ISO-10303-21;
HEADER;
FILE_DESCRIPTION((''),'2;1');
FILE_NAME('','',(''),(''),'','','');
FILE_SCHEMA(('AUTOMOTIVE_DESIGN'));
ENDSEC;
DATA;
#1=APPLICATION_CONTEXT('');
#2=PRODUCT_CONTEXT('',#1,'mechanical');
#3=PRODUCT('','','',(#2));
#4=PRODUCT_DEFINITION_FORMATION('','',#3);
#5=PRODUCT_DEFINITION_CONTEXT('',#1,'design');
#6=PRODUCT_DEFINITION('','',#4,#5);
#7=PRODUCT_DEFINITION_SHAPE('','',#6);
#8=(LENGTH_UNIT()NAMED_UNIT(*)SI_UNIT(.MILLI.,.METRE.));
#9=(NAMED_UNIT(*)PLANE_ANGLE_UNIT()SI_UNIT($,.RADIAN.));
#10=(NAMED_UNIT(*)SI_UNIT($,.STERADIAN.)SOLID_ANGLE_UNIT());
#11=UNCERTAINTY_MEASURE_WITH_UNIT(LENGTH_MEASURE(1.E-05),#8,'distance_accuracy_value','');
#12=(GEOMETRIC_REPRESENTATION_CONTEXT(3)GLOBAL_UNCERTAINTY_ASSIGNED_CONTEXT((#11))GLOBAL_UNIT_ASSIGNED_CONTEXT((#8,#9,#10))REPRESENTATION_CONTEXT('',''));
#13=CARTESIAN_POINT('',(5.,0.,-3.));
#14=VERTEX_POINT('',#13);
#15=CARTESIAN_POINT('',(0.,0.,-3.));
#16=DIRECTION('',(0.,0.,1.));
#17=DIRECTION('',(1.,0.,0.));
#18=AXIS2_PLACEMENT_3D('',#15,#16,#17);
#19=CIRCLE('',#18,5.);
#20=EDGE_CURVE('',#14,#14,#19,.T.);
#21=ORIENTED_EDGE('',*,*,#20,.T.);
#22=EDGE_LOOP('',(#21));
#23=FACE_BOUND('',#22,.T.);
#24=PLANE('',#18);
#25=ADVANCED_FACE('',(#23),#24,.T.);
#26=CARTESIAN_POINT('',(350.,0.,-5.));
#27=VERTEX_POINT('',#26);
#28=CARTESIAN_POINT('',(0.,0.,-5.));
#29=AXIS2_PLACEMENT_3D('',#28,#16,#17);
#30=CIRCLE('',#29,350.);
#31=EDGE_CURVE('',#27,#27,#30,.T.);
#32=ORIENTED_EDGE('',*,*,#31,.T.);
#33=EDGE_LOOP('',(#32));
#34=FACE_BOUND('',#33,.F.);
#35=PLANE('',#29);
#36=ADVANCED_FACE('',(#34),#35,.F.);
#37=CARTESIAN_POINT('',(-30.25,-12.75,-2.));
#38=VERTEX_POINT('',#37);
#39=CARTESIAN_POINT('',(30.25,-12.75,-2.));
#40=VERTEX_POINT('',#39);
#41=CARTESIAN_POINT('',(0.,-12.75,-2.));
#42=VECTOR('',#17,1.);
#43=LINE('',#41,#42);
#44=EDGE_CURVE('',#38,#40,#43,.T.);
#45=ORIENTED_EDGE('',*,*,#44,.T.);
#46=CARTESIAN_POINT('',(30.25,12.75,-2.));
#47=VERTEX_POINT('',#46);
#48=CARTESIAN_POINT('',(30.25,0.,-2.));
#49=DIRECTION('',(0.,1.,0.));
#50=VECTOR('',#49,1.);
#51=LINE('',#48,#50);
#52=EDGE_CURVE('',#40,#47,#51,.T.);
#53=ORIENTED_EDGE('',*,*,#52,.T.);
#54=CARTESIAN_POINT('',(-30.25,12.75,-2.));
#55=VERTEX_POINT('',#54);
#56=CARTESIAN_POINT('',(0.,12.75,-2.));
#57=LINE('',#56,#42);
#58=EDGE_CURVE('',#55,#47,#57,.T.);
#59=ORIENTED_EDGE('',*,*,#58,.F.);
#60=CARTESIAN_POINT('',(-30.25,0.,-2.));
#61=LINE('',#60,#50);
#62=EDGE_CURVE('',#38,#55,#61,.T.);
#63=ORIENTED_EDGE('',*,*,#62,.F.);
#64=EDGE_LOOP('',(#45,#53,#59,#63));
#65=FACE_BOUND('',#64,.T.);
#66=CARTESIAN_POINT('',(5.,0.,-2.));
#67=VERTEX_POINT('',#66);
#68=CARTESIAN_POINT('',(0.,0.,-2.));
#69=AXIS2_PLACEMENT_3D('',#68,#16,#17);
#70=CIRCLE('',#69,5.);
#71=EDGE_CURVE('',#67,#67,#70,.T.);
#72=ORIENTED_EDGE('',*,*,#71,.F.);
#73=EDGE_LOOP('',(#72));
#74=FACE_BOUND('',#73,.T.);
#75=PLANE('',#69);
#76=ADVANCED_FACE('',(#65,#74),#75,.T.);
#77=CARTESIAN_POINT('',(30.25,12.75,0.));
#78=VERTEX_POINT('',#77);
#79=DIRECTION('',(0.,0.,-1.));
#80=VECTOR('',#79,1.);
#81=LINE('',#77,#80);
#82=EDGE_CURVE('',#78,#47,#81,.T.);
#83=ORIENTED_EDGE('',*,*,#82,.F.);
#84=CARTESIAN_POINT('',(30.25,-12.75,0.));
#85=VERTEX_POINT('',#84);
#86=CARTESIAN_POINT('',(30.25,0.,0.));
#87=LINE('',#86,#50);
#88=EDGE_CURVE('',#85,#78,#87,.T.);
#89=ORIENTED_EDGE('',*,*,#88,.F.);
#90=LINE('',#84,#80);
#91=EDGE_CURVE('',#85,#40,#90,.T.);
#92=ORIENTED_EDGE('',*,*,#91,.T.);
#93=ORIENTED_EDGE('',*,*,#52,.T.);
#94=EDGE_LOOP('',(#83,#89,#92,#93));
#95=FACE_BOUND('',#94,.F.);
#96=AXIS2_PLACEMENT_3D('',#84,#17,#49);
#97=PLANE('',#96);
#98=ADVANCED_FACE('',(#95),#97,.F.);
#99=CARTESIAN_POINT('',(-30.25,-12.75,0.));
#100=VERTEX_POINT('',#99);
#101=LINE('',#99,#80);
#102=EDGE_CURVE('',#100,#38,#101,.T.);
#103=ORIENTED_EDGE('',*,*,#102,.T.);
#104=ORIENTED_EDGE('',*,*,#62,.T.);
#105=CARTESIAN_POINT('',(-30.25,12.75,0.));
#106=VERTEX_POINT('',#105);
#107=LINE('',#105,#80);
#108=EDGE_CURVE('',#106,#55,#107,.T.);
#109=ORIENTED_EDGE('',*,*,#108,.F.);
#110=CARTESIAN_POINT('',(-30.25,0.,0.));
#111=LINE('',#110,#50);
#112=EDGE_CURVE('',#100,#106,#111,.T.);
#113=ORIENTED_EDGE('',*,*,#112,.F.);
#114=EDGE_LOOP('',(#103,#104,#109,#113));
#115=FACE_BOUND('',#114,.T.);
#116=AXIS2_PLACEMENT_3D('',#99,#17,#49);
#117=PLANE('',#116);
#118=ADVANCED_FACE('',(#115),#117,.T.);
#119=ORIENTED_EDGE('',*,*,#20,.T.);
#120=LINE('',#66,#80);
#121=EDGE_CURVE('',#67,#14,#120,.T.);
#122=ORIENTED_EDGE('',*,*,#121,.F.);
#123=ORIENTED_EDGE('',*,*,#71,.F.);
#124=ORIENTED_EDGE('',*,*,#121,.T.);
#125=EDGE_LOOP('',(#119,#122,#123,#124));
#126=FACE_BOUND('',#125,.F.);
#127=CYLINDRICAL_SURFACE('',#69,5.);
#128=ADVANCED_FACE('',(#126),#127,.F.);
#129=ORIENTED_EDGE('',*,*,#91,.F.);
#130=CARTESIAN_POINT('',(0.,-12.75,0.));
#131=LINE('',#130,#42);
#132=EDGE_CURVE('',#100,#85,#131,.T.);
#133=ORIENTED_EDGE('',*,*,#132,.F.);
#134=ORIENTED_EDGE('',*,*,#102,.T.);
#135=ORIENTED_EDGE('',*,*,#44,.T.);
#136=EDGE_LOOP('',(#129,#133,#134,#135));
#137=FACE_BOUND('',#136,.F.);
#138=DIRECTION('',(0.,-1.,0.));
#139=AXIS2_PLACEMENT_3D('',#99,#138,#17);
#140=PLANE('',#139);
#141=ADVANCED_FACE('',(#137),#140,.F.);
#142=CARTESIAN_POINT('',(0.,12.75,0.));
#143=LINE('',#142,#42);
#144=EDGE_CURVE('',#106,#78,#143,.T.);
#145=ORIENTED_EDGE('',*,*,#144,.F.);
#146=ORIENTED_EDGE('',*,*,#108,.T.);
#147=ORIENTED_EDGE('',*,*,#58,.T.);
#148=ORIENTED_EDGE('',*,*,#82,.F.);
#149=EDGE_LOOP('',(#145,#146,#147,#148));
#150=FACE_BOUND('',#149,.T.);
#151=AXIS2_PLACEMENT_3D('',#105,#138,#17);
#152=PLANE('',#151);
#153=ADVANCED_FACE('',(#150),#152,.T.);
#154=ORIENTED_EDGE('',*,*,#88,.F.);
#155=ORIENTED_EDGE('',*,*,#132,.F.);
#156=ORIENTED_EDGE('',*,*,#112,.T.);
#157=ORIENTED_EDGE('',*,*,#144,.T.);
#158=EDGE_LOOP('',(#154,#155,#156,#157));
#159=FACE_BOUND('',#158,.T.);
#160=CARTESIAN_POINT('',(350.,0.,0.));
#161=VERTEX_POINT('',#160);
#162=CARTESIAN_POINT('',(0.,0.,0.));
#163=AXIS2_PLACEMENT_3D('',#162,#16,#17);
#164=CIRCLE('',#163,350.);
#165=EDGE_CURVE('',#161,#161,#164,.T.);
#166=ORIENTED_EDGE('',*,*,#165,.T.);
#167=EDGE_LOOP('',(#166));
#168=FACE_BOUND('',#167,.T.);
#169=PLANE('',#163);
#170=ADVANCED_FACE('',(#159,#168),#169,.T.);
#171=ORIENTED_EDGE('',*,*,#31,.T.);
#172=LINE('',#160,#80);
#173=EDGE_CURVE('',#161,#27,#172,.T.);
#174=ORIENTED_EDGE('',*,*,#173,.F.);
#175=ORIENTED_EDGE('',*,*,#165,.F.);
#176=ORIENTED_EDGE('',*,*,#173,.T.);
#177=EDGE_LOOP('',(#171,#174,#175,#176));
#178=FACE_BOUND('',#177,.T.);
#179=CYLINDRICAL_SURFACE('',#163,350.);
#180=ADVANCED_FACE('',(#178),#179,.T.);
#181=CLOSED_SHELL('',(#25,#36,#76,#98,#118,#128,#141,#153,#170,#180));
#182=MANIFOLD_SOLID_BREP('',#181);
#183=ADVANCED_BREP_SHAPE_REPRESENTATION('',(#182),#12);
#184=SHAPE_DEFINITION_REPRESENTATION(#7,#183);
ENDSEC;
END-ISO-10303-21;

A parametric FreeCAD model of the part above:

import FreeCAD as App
import Part
import Sketcher

V = App.Vector


def add_polygon(sketch, points):
    """Adds a closed chain of lines whose ends are joined by coincident constraints."""
    first, n = sketch.GeometryCount, len(points)
    for a, b in zip(points, points[1:] + points[:1]):
        sketch.addGeometry(Part.LineSegment(App.Vector(*a, 0), App.Vector(*b, 0)), False)
    for i in range(n):
        sketch.addConstraint(Sketcher.Constraint("Coincident", first + i, 2, first + (i + 1) % n, 1))

doc = App.newDocument("Part")
body = doc.addObject("PartDesign::Body", "Body")

# Sketch on XY plane
sketch1 = body.newObject("Sketcher::SketchObject", "Sketch")
sketch1.AttachmentSupport = (doc.getObject("XY_Plane"), [""])
sketch1.MapMode = "FlatFace"
sketch1.addGeometry(Part.Circle(V(0, 0, 0), V(0, 0, 1), 350), False)
sketch1.addConstraint([
    Sketcher.Constraint("Coincident", 0, 3, -1, 1),
    Sketcher.Constraint("Diameter", 0, 700.0),
])
pad1 = body.newObject("PartDesign::Pad", "Pad")
pad1.Profile = sketch1
pad1.Length = 5
pad1.Reversed = True

# Sketch on XY plane
sketch2 = body.newObject("Sketcher::SketchObject", "Sketch001")
sketch2.AttachmentSupport = (doc.getObject("XY_Plane"), [""])
sketch2.MapMode = "FlatFace"
add_polygon(sketch2, [(-30, 13), (-30, -13), (30, -13), (30, 13)])  # lines 0-3
sketch2.addConstraint([
    Sketcher.Constraint("Vertical", 0),
    Sketcher.Constraint("Horizontal", 1),
    Sketcher.Constraint("Vertical", 2),
    Sketcher.Constraint("Horizontal", 3),
    Sketcher.Constraint("Symmetric", 0, 2, 2, 2, -1, 1),
    Sketcher.Constraint("DistanceX", 1, 1, 1, 2, 60.5),
    Sketcher.Constraint("DistanceY", 0, 2, 0, 1, 25.5),
])
pocket1 = body.newObject("PartDesign::Pocket", "Pocket")
pocket1.Profile = sketch2
pocket1.Length = 2

# Sketch on XY plane
sketch3 = body.newObject("Sketcher::SketchObject", "Sketch002")
sketch3.AttachmentSupport = (doc.getObject("XY_Plane"), [""])
sketch3.MapMode = "FlatFace"
sketch3.AttachmentOffset = App.Placement(V(0, 0, -2), App.Rotation())
sketch3.addGeometry(Part.Circle(V(0, 0, 0), V(0, 0, 1), 5), False)
sketch3.addConstraint([
    Sketcher.Constraint("Coincident", 0, 3, -1, 1),
    Sketcher.Constraint("Diameter", 0, 10.0),
])
pocket2 = body.newObject("PartDesign::Pocket", "Pocket001")
pocket2.Profile = sketch3
pocket2.Length = 1

doc.recompute()
